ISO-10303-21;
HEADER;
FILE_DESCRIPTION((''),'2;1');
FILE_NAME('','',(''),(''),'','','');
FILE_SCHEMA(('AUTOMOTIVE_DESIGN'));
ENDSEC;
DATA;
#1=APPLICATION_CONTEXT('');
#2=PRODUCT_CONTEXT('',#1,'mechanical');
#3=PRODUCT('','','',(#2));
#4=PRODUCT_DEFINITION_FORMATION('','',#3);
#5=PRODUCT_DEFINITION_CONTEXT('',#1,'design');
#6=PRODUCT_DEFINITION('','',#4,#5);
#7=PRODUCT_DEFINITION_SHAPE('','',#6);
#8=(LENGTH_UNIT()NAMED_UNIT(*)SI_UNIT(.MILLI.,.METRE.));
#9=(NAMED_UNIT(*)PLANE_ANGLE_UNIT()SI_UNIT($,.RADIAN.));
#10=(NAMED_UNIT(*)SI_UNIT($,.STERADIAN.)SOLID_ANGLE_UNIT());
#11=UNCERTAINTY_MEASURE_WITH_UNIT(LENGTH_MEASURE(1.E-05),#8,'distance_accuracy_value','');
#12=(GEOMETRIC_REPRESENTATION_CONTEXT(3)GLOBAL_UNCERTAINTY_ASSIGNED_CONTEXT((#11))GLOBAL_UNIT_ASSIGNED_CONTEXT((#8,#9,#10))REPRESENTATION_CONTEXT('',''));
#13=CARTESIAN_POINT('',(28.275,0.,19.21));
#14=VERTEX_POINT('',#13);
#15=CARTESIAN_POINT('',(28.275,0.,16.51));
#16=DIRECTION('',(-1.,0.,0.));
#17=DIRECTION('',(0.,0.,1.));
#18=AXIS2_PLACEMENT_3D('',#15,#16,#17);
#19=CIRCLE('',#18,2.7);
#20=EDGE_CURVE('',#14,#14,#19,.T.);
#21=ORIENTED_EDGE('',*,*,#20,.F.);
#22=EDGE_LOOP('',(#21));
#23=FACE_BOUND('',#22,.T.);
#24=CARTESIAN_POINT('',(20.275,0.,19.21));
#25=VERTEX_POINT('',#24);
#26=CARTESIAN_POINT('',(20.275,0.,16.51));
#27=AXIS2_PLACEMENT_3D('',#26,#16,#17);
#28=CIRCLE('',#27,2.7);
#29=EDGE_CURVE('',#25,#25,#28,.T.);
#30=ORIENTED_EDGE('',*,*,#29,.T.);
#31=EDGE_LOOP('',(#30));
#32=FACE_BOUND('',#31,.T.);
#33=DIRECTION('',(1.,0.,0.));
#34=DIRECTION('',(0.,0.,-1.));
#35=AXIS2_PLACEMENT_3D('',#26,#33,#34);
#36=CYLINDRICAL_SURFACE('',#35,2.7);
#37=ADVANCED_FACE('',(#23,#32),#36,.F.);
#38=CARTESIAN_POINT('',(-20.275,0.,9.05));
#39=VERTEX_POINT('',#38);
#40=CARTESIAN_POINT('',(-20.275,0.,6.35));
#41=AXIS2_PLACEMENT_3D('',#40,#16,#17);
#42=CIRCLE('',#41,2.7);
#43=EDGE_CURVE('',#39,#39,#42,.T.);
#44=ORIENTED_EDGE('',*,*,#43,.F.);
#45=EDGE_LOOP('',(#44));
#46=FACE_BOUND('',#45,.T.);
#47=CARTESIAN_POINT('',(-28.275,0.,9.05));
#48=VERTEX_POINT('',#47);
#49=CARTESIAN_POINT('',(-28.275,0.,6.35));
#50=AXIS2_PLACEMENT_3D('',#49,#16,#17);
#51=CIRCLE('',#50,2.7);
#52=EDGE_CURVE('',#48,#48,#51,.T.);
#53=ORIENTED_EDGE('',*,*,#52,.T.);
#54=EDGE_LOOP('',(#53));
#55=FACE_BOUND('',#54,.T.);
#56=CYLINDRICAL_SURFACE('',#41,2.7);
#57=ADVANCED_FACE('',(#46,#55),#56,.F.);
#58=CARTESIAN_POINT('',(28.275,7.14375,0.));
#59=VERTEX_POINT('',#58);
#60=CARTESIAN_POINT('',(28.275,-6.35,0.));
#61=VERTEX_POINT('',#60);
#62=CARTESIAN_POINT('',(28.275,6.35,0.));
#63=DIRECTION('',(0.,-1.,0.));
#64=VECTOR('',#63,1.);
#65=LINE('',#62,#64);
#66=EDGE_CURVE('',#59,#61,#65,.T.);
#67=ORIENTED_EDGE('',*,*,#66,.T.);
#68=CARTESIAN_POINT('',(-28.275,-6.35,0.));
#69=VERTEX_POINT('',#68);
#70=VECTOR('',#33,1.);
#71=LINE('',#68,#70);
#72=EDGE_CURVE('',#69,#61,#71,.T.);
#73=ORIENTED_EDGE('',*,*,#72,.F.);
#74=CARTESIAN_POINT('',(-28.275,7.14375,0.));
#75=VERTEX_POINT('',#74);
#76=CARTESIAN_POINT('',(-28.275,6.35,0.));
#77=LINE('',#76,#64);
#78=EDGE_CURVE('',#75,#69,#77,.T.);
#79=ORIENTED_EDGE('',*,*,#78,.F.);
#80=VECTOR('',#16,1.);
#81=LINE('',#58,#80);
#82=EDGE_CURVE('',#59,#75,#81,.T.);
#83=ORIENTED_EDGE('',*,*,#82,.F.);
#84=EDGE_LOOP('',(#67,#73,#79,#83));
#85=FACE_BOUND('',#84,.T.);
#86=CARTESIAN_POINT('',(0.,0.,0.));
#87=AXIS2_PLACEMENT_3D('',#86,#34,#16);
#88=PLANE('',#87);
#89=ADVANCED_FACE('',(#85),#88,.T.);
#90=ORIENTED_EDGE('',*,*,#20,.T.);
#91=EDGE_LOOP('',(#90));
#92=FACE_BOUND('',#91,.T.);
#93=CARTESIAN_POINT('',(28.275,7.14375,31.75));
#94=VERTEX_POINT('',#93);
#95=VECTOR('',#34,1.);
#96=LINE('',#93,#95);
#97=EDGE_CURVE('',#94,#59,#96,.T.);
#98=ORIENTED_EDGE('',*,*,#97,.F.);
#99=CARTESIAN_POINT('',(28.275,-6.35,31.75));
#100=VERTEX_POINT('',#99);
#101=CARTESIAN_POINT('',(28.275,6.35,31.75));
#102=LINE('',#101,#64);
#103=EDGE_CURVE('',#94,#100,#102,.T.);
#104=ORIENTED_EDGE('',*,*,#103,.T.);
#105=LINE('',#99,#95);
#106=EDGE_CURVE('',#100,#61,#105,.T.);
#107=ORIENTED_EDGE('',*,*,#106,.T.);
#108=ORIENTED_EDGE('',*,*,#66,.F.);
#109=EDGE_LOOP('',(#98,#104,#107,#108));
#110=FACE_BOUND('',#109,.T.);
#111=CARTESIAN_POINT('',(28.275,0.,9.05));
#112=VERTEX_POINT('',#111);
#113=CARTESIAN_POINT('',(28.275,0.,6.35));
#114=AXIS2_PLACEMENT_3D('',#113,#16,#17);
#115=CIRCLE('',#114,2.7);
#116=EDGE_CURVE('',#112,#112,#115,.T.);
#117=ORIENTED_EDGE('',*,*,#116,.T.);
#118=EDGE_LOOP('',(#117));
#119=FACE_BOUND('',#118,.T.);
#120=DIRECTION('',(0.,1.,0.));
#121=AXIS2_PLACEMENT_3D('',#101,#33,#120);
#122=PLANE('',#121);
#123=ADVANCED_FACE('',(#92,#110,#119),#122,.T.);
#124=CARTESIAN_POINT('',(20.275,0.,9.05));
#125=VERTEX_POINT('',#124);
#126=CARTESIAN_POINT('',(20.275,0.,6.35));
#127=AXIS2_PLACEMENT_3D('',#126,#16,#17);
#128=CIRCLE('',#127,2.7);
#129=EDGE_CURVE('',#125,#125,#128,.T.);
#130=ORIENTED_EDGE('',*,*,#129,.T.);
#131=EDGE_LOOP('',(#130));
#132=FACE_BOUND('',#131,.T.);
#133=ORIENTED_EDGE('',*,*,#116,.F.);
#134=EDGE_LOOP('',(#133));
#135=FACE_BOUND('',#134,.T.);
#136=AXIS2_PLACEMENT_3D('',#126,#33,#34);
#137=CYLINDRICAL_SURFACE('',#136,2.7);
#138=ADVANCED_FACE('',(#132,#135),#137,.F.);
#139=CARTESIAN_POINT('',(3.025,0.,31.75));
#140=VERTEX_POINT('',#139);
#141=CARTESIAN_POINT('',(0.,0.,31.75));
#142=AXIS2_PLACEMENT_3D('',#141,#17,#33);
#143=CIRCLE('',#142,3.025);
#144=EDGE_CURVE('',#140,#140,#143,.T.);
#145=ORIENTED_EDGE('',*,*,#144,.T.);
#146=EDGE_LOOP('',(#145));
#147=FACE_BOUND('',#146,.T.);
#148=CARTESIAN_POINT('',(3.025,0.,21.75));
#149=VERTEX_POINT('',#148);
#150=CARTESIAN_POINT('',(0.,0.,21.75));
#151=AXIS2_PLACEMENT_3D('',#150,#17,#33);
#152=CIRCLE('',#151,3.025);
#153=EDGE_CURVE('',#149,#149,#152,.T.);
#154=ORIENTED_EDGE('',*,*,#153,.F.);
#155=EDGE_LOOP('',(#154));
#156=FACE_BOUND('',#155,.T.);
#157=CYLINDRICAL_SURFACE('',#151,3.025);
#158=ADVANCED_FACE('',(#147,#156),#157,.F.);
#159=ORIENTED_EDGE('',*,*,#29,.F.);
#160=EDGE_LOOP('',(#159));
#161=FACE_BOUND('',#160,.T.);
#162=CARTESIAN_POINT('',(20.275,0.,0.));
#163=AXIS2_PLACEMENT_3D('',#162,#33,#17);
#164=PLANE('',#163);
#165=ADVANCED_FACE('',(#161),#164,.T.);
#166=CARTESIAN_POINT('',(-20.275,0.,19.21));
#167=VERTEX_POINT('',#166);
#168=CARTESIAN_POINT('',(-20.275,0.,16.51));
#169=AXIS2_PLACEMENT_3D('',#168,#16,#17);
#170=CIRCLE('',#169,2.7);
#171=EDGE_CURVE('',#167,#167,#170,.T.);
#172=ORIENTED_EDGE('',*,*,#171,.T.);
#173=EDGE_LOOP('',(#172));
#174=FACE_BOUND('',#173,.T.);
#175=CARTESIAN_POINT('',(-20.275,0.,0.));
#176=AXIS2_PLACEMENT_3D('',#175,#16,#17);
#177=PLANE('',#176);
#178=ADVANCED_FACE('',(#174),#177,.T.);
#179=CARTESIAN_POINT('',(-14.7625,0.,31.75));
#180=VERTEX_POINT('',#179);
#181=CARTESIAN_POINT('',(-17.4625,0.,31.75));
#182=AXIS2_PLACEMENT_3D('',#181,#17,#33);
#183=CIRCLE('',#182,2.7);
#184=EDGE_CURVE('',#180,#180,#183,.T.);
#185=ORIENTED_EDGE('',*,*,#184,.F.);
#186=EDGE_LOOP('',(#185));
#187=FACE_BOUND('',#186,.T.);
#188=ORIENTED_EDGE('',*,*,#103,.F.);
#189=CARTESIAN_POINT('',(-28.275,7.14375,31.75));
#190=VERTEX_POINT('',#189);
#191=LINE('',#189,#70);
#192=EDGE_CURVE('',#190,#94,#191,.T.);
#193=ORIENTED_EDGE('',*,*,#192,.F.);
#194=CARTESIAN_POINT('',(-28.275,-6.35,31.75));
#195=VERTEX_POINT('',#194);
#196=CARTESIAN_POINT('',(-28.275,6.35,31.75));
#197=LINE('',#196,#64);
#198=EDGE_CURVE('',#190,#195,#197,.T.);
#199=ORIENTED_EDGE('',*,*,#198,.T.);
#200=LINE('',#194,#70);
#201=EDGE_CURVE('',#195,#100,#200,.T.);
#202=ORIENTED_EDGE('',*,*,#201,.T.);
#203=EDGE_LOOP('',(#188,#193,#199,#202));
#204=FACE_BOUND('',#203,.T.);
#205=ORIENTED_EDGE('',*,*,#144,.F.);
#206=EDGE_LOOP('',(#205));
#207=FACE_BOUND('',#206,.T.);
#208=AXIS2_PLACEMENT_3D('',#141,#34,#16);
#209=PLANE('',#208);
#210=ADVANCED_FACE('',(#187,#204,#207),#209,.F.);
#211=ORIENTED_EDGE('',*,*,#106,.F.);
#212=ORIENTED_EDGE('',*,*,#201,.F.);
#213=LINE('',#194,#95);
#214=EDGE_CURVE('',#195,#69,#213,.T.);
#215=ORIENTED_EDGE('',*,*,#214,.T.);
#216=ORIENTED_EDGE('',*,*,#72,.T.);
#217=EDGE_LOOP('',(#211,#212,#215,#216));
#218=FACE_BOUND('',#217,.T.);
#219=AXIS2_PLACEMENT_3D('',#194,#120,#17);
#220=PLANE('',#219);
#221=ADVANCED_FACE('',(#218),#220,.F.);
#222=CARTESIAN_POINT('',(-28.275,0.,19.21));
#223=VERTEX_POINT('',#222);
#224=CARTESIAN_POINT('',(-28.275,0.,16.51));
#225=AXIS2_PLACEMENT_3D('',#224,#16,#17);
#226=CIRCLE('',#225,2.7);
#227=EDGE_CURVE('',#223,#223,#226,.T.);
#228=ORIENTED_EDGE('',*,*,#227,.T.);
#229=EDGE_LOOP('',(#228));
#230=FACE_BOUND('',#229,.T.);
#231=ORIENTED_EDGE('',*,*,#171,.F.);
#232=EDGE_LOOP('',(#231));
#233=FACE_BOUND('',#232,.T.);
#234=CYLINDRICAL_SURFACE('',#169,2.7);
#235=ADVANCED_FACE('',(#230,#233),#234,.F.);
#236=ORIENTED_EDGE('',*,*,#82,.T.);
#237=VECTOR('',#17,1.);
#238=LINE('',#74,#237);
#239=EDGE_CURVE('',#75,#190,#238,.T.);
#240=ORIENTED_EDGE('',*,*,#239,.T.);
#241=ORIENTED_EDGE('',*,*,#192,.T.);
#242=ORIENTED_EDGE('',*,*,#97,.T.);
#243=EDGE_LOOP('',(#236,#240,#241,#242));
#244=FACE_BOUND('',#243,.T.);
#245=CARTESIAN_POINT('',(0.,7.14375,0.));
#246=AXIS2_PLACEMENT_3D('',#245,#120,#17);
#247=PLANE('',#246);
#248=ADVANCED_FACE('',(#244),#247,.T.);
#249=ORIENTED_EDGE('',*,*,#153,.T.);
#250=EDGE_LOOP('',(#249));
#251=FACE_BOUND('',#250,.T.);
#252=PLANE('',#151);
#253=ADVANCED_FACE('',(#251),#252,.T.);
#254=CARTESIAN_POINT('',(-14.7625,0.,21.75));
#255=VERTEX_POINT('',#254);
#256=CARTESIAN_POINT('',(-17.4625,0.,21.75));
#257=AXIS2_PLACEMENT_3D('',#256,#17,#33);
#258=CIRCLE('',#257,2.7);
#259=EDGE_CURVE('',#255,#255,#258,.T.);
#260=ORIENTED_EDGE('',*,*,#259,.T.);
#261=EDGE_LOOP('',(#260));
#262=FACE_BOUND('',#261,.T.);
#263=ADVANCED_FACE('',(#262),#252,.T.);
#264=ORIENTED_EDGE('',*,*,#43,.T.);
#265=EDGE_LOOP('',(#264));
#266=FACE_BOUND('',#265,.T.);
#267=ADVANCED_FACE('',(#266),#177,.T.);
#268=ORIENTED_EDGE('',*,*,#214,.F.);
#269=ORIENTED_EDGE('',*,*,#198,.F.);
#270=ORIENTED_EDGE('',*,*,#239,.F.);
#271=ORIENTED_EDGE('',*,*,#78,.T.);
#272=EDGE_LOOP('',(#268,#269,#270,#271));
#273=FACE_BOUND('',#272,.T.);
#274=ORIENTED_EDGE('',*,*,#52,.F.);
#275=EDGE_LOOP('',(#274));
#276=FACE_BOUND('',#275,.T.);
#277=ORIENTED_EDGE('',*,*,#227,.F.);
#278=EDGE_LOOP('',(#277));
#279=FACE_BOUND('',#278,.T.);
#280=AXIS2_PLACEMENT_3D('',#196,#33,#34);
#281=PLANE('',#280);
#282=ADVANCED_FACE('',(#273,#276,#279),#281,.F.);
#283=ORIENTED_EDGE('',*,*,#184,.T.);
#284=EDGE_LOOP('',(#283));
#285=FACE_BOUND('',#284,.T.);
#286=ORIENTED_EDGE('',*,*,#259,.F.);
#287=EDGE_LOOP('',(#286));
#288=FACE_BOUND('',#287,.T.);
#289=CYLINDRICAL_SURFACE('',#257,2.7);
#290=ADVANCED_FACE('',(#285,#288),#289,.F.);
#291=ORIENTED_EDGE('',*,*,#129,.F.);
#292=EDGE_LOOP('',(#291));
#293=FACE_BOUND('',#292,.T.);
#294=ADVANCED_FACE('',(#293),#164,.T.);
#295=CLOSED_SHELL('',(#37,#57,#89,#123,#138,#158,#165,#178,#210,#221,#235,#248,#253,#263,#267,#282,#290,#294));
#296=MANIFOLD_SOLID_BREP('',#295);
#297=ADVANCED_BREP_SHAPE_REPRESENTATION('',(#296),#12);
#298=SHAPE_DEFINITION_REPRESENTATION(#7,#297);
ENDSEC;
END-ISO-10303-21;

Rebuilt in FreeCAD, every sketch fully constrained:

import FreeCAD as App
import Part
import Sketcher


def add_polygon(sketch, points):
    """Adds a closed chain of lines whose ends are joined by coincident constraints."""
    first, n = sketch.GeometryCount, len(points)
    for a, b in zip(points, points[1:] + points[:1]):
        sketch.addGeometry(Part.LineSegment(App.Vector(*a, 0), App.Vector(*b, 0)), False)
    for i in range(n):
        sketch.addConstraint(Sketcher.Constraint("Coincident", first + i, 2, first + (i + 1) % n, 1))

doc = App.newDocument("Part")
body = doc.addObject("PartDesign::Body", "Body")

sketch1 = body.newObject("Sketcher::SketchObject", "Sketch")
sketch1.AttachmentSupport = (doc.getObject("XY_Plane"), [""])
sketch1.MapMode = "FlatFace"
add_polygon(sketch1, [(-28, 6), (-28, -6), (28, -6), (28, 6)])
sketch1.addConstraint([
    Sketcher.Constraint("Vertical", 0),
    Sketcher.Constraint("Horizontal", 1),
    Sketcher.Constraint("Vertical", 2),
    Sketcher.Constraint("Horizontal", 3),
    Sketcher.Constraint("Symmetric", 0, 2, 2, 2, -1, 1),
    Sketcher.Constraint("DistanceY", 0, 2, 0, 1, 12.7),
    Sketcher.Constraint("DistanceX", 1, 1, 1, 2, 56.55),
])
pad1 = body.newObject("PartDesign::Pad", "Pad")
pad1.Profile = sketch1
pad1.Length = 31.75

sketch2 = body.newObject("Sketcher::SketchObject", "Sketch001")
sketch2.AttachmentSupport = (doc.getObject("XY_Plane"), [""])
sketch2.MapMode = "FlatFace"
sketch2.AttachmentOffset = App.Placement(App.Vector(0, 0, 31.75), App.Rotation())
sketch2.addGeometry([
    Part.Circle(App.Vector(-17.5, 0, 0), App.Vector(0, 0, 1), 2.7),
    Part.Circle(App.Vector(0, 0, 0), App.Vector(0, 0, 1), 3),
], False)
sketch2.addConstraint([
    Sketcher.Constraint("Coincident", 1, 3, -1, 1),
    Sketcher.Constraint("PointOnObject", 0, 3, -1),
    Sketcher.Constraint("Diameter", 0, 5.4),
    Sketcher.Constraint("Diameter", 1, 6.05),
    Sketcher.Constraint("DistanceX", 0, 3, -1, 1, 17.4625),
])
pocket1 = body.newObject("PartDesign::Pocket", "Pocket")
pocket1.Profile = sketch2
pocket1.Length = 10

sketch3 = body.newObject("Sketcher::SketchObject", "Sketch002")
sketch3.AttachmentSupport = (doc.getObject("YZ_Plane"), [""])
sketch3.MapMode = "FlatFace"
sketch3.AttachmentOffset = App.Placement(App.Vector(0, 0, -28.275), App.Rotation())
sketch3.addGeometry([
    Part.Circle(App.Vector(0, 6.3, 0), App.Vector(0, 0, 1), 2.7),
    Part.Circle(App.Vector(0, 16.5, 0), App.Vector(0, 0, 1), 2.7),
], False)
sketch3.addConstraint([
    Sketcher.Constraint("Equal", 0, 1),
    Sketcher.Constraint("PointOnObject", 0, 3, -2),
    Sketcher.Constraint("PointOnObject", 1, 3, -2),
    Sketcher.Constraint("Diameter", 0, 5.4),
    Sketcher.Constraint("DistanceY", -1, 1, 0, 3, 6.35),
    Sketcher.Constraint("DistanceY", -1, 1, 1, 3, 16.51),
])
pocket2 = body.newObject("PartDesign::Pocket", "Pocket001")
pocket2.Profile = sketch3
pocket2.Length = 8
pocket2.Reversed = True

sketch4 = body.newObject("Sketcher::SketchObject", "Sketch003")
sketch4.AttachmentSupport = (doc.getObject("XZ_Plane"), [""])
sketch4.MapMode = "FlatFace"
sketch4.AttachmentOffset = App.Placement(App.Vector(0, 0, -6.35), App.Rotation())
add_polygon(sketch4, [(-28, 0), (-28, 32), (28, 32), (28, 0)])
sketch4.addConstraint([
    Sketcher.Constraint("Vertical", 0),
    Sketcher.Constraint("Horizontal", 1),
    Sketcher.Constraint("Vertical", 2),
    Sketcher.Constraint("Horizontal", 3),
    Sketcher.Constraint("Symmetric", 2, 2, 3, 2, -1, 1),
    Sketcher.Constraint("DistanceX", 1, 1, 1, 2, 56.55),
    Sketcher.Constraint("DistanceY", 0, 1, 0, 2, 31.75),
])
pad2 = body.newObject("PartDesign::Pad", "Pad001")
pad2.Profile = sketch4
pad2.Length = 0.79375
pad2.Reversed = True
doc.recompute()

mirrored = body.newObject("PartDesign::Mirrored", "Mirrored")
mirrored.Originals = [pocket2]
mirrored.MirrorPlane = (doc.getObject("YZ_Plane"), [""])
body.Tip = mirrored

doc.recompute()
